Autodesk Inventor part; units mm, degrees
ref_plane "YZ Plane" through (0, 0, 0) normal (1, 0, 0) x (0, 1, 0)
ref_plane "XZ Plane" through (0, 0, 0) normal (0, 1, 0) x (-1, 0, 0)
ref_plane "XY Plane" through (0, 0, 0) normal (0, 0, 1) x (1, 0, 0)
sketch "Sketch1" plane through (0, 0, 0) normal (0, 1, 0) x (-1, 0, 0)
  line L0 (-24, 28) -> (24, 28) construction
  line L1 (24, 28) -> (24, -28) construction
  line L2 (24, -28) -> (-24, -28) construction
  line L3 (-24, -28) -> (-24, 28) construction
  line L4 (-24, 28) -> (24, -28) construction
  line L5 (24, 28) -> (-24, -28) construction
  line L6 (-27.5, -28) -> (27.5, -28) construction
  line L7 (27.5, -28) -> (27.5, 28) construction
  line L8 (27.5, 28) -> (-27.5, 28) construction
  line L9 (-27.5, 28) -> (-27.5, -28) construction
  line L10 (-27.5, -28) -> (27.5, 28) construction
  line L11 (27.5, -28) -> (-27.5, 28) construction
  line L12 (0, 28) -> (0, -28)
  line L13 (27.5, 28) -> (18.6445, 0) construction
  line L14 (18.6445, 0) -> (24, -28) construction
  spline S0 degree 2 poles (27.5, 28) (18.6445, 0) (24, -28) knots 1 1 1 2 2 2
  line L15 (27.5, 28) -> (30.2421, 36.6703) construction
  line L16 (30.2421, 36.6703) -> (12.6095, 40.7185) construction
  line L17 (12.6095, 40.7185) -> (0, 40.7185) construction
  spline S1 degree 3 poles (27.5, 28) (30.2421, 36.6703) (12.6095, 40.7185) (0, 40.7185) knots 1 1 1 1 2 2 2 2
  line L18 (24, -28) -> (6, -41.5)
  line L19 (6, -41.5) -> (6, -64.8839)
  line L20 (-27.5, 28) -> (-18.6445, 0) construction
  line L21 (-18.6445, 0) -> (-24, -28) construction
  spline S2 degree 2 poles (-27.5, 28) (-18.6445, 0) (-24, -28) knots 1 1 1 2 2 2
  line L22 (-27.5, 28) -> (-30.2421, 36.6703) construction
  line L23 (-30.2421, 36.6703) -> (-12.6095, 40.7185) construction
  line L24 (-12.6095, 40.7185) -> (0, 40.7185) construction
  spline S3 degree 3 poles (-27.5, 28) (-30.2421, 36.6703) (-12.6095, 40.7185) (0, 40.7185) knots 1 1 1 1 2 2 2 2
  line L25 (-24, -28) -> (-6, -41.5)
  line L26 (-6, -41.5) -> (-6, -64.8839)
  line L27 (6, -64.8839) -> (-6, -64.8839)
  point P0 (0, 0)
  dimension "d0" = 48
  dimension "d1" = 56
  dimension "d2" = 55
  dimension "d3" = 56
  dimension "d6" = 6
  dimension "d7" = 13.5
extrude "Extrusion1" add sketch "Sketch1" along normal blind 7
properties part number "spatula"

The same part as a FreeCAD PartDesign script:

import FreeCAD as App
import Part
import Sketcher
from FreeCAD import Vector
Q = App.Units.Quantity

doc = App.newDocument("Part")
body = doc.addObject("PartDesign::Body", "Body")

# Sketch on XZ plane
sketch1 = body.newObject("Sketcher::SketchObject", "Sketch")
sketch1.AttachmentSupport = (doc.getObject("XZ_Plane"), [""])
sketch1.MapMode = "FlatFace"
sketch1.addGeometry(Part.BSplineCurve([Vector(-27.5, 28, 0), Vector(-18.6445, 0, 0), Vector(-24, -28, 0)], [3, 3], [1, 2], False, 2, [1, 1, 1], False), False)
sketch1.addGeometry(Part.BSplineCurve([Vector(-27.5, 28, 0), Vector(-30.2421, 36.6703, 0), Vector(-12.6095, 40.7185, 0), Vector(0, 40.7185, 0)], [4, 4], [1, 2], False, 3, [1, 1, 1, 1], False), False)
sketch1.addGeometry(Part.BSplineCurve([Vector(27.5, 28, 0), Vector(30.2421, 36.6703, 0), Vector(12.6095, 40.7185, 0), Vector(0, 40.7185, 0)], [4, 4], [1, 2], False, 3, [1, 1, 1, 1], False), False)
sketch1.addGeometry(Part.BSplineCurve([Vector(27.5, 28, 0), Vector(18.6445, 0, 0), Vector(24, -28, 0)], [3, 3], [1, 2], False, 2, [1, 1, 1], False), False)
sketch1.addGeometry(Part.LineSegment(Vector(24, -28, 0), Vector(6, -41.5, 0)), False)
sketch1.addGeometry(Part.LineSegment(Vector(6, -41.5, 0), Vector(6, -64.8839, 0)), False)
sketch1.addGeometry(Part.LineSegment(Vector(6, -64.8839, 0), Vector(-6, -64.8839, 0)), False)
sketch1.addGeometry(Part.LineSegment(Vector(-6, -64.8839, 0), Vector(-6, -41.5, 0)), False)
sketch1.addGeometry(Part.LineSegment(Vector(-6, -41.5, 0), Vector(-24, -28, 0)), False)
sketch1.addConstraint(Sketcher.Constraint("Block", 0))
sketch1.addConstraint(Sketcher.Constraint("Block", 1))
sketch1.addConstraint(Sketcher.Constraint("Block", 2))
sketch1.addConstraint(Sketcher.Constraint("Block", 3))
sketch1.addConstraint(Sketcher.Constraint("Coincident", 3, 2, 4, 1))
sketch1.addConstraint(Sketcher.Constraint("Coincident", 4, 2, 5, 1))
sketch1.addConstraint(Sketcher.Constraint("Coincident", 5, 2, 6, 1))
sketch1.addConstraint(Sketcher.Constraint("Coincident", 6, 2, 7, 1))
sketch1.addConstraint(Sketcher.Constraint("Coincident", 7, 2, 8, 1))
sketch1.addConstraint(Sketcher.Constraint("Coincident", 8, 2, 0, 2))
sketch1.addConstraint(Sketcher.Constraint("Vertical", 5))
sketch1.addConstraint(Sketcher.Constraint("Horizontal", 6))
sketch1.addConstraint(Sketcher.Constraint("Vertical", 7))
sketch1.addConstraint(Sketcher.Constraint("Symmetric", 4, 2, 7, 2, -2))
sketch1.addConstraint(Sketcher.Constraint("DistanceX", -1, 1, 4, 2, Q("6 mm")))
sketch1.addConstraint(Sketcher.Constraint("DistanceY", 7, 2, 8, 2, Q("13.5 mm")))
sketch1.addConstraint(Sketcher.Constraint("DistanceY", 5, 2, 5, 1, Q("23.384 mm")))
pad1 = body.newObject("PartDesign::Pad", "Pad")
pad1.Profile = sketch1
pad1.Length = 7
pad1.Reversed = True

doc.recompute()
